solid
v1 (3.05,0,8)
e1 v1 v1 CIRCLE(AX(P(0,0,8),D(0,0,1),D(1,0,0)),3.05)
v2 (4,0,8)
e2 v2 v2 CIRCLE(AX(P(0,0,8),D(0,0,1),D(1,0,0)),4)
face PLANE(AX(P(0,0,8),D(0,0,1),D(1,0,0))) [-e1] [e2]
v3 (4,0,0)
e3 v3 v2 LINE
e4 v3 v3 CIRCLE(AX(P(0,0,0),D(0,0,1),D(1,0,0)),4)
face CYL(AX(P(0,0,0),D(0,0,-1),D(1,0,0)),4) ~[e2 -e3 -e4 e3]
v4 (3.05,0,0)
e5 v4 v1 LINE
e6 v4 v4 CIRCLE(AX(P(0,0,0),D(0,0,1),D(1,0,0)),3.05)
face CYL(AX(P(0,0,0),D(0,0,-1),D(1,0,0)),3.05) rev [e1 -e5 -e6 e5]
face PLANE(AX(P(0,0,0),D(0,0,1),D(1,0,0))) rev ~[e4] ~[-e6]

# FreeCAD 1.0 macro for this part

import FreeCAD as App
import Part
import Sketcher

V = App.Vector

doc = App.newDocument("Part")
params = doc.addObject("Spreadsheet::Sheet", "Params")
for row, (alias, value) in enumerate([
    ("sketch1_diameter", "8 mm"),
    ("sketch1_diameter2", "6.1 mm"),
    ("pad1_length", "8 mm"),
], start=1):
    params.set(f"A{row}", alias)
    params.set(f"B{row}", "=" + value)
    params.setAlias(f"B{row}", alias)

body = doc.addObject("PartDesign::Body", "Body")

# Sketch on XY plane
sketch1 = body.newObject("Sketcher::SketchObject", "Sketch")
sketch1.AttachmentSupport = (doc.getObject("XY_Plane"), [""])
sketch1.MapMode = "FlatFace"
sketch1.addGeometry(Part.Circle(V(0, 0, 0), V(0, 0, 1), 4), False)
sketch1.addGeometry(Part.Circle(V(0, 0, 0), V(0, 0, 1), 3), False)
sketch1.addConstraint(Sketcher.Constraint("Coincident", 0, 3, -1, 1))
sketch1.addConstraint(Sketcher.Constraint("Coincident", 1, 3, -1, 1))
sketch1.addConstraint(Sketcher.Constraint("Diameter", 0, 8.0))
sketch1.addConstraint(Sketcher.Constraint("Diameter", 1, 6.1))
sketch1.setExpression("Constraints[2]", "Params.sketch1_diameter")
sketch1.setExpression("Constraints[3]", "Params.sketch1_diameter2")
pad1 = body.newObject("PartDesign::Pad", "Pad")
pad1.Profile = sketch1
pad1.setExpression("Length", "Params.pad1_length")

doc.recompute()
